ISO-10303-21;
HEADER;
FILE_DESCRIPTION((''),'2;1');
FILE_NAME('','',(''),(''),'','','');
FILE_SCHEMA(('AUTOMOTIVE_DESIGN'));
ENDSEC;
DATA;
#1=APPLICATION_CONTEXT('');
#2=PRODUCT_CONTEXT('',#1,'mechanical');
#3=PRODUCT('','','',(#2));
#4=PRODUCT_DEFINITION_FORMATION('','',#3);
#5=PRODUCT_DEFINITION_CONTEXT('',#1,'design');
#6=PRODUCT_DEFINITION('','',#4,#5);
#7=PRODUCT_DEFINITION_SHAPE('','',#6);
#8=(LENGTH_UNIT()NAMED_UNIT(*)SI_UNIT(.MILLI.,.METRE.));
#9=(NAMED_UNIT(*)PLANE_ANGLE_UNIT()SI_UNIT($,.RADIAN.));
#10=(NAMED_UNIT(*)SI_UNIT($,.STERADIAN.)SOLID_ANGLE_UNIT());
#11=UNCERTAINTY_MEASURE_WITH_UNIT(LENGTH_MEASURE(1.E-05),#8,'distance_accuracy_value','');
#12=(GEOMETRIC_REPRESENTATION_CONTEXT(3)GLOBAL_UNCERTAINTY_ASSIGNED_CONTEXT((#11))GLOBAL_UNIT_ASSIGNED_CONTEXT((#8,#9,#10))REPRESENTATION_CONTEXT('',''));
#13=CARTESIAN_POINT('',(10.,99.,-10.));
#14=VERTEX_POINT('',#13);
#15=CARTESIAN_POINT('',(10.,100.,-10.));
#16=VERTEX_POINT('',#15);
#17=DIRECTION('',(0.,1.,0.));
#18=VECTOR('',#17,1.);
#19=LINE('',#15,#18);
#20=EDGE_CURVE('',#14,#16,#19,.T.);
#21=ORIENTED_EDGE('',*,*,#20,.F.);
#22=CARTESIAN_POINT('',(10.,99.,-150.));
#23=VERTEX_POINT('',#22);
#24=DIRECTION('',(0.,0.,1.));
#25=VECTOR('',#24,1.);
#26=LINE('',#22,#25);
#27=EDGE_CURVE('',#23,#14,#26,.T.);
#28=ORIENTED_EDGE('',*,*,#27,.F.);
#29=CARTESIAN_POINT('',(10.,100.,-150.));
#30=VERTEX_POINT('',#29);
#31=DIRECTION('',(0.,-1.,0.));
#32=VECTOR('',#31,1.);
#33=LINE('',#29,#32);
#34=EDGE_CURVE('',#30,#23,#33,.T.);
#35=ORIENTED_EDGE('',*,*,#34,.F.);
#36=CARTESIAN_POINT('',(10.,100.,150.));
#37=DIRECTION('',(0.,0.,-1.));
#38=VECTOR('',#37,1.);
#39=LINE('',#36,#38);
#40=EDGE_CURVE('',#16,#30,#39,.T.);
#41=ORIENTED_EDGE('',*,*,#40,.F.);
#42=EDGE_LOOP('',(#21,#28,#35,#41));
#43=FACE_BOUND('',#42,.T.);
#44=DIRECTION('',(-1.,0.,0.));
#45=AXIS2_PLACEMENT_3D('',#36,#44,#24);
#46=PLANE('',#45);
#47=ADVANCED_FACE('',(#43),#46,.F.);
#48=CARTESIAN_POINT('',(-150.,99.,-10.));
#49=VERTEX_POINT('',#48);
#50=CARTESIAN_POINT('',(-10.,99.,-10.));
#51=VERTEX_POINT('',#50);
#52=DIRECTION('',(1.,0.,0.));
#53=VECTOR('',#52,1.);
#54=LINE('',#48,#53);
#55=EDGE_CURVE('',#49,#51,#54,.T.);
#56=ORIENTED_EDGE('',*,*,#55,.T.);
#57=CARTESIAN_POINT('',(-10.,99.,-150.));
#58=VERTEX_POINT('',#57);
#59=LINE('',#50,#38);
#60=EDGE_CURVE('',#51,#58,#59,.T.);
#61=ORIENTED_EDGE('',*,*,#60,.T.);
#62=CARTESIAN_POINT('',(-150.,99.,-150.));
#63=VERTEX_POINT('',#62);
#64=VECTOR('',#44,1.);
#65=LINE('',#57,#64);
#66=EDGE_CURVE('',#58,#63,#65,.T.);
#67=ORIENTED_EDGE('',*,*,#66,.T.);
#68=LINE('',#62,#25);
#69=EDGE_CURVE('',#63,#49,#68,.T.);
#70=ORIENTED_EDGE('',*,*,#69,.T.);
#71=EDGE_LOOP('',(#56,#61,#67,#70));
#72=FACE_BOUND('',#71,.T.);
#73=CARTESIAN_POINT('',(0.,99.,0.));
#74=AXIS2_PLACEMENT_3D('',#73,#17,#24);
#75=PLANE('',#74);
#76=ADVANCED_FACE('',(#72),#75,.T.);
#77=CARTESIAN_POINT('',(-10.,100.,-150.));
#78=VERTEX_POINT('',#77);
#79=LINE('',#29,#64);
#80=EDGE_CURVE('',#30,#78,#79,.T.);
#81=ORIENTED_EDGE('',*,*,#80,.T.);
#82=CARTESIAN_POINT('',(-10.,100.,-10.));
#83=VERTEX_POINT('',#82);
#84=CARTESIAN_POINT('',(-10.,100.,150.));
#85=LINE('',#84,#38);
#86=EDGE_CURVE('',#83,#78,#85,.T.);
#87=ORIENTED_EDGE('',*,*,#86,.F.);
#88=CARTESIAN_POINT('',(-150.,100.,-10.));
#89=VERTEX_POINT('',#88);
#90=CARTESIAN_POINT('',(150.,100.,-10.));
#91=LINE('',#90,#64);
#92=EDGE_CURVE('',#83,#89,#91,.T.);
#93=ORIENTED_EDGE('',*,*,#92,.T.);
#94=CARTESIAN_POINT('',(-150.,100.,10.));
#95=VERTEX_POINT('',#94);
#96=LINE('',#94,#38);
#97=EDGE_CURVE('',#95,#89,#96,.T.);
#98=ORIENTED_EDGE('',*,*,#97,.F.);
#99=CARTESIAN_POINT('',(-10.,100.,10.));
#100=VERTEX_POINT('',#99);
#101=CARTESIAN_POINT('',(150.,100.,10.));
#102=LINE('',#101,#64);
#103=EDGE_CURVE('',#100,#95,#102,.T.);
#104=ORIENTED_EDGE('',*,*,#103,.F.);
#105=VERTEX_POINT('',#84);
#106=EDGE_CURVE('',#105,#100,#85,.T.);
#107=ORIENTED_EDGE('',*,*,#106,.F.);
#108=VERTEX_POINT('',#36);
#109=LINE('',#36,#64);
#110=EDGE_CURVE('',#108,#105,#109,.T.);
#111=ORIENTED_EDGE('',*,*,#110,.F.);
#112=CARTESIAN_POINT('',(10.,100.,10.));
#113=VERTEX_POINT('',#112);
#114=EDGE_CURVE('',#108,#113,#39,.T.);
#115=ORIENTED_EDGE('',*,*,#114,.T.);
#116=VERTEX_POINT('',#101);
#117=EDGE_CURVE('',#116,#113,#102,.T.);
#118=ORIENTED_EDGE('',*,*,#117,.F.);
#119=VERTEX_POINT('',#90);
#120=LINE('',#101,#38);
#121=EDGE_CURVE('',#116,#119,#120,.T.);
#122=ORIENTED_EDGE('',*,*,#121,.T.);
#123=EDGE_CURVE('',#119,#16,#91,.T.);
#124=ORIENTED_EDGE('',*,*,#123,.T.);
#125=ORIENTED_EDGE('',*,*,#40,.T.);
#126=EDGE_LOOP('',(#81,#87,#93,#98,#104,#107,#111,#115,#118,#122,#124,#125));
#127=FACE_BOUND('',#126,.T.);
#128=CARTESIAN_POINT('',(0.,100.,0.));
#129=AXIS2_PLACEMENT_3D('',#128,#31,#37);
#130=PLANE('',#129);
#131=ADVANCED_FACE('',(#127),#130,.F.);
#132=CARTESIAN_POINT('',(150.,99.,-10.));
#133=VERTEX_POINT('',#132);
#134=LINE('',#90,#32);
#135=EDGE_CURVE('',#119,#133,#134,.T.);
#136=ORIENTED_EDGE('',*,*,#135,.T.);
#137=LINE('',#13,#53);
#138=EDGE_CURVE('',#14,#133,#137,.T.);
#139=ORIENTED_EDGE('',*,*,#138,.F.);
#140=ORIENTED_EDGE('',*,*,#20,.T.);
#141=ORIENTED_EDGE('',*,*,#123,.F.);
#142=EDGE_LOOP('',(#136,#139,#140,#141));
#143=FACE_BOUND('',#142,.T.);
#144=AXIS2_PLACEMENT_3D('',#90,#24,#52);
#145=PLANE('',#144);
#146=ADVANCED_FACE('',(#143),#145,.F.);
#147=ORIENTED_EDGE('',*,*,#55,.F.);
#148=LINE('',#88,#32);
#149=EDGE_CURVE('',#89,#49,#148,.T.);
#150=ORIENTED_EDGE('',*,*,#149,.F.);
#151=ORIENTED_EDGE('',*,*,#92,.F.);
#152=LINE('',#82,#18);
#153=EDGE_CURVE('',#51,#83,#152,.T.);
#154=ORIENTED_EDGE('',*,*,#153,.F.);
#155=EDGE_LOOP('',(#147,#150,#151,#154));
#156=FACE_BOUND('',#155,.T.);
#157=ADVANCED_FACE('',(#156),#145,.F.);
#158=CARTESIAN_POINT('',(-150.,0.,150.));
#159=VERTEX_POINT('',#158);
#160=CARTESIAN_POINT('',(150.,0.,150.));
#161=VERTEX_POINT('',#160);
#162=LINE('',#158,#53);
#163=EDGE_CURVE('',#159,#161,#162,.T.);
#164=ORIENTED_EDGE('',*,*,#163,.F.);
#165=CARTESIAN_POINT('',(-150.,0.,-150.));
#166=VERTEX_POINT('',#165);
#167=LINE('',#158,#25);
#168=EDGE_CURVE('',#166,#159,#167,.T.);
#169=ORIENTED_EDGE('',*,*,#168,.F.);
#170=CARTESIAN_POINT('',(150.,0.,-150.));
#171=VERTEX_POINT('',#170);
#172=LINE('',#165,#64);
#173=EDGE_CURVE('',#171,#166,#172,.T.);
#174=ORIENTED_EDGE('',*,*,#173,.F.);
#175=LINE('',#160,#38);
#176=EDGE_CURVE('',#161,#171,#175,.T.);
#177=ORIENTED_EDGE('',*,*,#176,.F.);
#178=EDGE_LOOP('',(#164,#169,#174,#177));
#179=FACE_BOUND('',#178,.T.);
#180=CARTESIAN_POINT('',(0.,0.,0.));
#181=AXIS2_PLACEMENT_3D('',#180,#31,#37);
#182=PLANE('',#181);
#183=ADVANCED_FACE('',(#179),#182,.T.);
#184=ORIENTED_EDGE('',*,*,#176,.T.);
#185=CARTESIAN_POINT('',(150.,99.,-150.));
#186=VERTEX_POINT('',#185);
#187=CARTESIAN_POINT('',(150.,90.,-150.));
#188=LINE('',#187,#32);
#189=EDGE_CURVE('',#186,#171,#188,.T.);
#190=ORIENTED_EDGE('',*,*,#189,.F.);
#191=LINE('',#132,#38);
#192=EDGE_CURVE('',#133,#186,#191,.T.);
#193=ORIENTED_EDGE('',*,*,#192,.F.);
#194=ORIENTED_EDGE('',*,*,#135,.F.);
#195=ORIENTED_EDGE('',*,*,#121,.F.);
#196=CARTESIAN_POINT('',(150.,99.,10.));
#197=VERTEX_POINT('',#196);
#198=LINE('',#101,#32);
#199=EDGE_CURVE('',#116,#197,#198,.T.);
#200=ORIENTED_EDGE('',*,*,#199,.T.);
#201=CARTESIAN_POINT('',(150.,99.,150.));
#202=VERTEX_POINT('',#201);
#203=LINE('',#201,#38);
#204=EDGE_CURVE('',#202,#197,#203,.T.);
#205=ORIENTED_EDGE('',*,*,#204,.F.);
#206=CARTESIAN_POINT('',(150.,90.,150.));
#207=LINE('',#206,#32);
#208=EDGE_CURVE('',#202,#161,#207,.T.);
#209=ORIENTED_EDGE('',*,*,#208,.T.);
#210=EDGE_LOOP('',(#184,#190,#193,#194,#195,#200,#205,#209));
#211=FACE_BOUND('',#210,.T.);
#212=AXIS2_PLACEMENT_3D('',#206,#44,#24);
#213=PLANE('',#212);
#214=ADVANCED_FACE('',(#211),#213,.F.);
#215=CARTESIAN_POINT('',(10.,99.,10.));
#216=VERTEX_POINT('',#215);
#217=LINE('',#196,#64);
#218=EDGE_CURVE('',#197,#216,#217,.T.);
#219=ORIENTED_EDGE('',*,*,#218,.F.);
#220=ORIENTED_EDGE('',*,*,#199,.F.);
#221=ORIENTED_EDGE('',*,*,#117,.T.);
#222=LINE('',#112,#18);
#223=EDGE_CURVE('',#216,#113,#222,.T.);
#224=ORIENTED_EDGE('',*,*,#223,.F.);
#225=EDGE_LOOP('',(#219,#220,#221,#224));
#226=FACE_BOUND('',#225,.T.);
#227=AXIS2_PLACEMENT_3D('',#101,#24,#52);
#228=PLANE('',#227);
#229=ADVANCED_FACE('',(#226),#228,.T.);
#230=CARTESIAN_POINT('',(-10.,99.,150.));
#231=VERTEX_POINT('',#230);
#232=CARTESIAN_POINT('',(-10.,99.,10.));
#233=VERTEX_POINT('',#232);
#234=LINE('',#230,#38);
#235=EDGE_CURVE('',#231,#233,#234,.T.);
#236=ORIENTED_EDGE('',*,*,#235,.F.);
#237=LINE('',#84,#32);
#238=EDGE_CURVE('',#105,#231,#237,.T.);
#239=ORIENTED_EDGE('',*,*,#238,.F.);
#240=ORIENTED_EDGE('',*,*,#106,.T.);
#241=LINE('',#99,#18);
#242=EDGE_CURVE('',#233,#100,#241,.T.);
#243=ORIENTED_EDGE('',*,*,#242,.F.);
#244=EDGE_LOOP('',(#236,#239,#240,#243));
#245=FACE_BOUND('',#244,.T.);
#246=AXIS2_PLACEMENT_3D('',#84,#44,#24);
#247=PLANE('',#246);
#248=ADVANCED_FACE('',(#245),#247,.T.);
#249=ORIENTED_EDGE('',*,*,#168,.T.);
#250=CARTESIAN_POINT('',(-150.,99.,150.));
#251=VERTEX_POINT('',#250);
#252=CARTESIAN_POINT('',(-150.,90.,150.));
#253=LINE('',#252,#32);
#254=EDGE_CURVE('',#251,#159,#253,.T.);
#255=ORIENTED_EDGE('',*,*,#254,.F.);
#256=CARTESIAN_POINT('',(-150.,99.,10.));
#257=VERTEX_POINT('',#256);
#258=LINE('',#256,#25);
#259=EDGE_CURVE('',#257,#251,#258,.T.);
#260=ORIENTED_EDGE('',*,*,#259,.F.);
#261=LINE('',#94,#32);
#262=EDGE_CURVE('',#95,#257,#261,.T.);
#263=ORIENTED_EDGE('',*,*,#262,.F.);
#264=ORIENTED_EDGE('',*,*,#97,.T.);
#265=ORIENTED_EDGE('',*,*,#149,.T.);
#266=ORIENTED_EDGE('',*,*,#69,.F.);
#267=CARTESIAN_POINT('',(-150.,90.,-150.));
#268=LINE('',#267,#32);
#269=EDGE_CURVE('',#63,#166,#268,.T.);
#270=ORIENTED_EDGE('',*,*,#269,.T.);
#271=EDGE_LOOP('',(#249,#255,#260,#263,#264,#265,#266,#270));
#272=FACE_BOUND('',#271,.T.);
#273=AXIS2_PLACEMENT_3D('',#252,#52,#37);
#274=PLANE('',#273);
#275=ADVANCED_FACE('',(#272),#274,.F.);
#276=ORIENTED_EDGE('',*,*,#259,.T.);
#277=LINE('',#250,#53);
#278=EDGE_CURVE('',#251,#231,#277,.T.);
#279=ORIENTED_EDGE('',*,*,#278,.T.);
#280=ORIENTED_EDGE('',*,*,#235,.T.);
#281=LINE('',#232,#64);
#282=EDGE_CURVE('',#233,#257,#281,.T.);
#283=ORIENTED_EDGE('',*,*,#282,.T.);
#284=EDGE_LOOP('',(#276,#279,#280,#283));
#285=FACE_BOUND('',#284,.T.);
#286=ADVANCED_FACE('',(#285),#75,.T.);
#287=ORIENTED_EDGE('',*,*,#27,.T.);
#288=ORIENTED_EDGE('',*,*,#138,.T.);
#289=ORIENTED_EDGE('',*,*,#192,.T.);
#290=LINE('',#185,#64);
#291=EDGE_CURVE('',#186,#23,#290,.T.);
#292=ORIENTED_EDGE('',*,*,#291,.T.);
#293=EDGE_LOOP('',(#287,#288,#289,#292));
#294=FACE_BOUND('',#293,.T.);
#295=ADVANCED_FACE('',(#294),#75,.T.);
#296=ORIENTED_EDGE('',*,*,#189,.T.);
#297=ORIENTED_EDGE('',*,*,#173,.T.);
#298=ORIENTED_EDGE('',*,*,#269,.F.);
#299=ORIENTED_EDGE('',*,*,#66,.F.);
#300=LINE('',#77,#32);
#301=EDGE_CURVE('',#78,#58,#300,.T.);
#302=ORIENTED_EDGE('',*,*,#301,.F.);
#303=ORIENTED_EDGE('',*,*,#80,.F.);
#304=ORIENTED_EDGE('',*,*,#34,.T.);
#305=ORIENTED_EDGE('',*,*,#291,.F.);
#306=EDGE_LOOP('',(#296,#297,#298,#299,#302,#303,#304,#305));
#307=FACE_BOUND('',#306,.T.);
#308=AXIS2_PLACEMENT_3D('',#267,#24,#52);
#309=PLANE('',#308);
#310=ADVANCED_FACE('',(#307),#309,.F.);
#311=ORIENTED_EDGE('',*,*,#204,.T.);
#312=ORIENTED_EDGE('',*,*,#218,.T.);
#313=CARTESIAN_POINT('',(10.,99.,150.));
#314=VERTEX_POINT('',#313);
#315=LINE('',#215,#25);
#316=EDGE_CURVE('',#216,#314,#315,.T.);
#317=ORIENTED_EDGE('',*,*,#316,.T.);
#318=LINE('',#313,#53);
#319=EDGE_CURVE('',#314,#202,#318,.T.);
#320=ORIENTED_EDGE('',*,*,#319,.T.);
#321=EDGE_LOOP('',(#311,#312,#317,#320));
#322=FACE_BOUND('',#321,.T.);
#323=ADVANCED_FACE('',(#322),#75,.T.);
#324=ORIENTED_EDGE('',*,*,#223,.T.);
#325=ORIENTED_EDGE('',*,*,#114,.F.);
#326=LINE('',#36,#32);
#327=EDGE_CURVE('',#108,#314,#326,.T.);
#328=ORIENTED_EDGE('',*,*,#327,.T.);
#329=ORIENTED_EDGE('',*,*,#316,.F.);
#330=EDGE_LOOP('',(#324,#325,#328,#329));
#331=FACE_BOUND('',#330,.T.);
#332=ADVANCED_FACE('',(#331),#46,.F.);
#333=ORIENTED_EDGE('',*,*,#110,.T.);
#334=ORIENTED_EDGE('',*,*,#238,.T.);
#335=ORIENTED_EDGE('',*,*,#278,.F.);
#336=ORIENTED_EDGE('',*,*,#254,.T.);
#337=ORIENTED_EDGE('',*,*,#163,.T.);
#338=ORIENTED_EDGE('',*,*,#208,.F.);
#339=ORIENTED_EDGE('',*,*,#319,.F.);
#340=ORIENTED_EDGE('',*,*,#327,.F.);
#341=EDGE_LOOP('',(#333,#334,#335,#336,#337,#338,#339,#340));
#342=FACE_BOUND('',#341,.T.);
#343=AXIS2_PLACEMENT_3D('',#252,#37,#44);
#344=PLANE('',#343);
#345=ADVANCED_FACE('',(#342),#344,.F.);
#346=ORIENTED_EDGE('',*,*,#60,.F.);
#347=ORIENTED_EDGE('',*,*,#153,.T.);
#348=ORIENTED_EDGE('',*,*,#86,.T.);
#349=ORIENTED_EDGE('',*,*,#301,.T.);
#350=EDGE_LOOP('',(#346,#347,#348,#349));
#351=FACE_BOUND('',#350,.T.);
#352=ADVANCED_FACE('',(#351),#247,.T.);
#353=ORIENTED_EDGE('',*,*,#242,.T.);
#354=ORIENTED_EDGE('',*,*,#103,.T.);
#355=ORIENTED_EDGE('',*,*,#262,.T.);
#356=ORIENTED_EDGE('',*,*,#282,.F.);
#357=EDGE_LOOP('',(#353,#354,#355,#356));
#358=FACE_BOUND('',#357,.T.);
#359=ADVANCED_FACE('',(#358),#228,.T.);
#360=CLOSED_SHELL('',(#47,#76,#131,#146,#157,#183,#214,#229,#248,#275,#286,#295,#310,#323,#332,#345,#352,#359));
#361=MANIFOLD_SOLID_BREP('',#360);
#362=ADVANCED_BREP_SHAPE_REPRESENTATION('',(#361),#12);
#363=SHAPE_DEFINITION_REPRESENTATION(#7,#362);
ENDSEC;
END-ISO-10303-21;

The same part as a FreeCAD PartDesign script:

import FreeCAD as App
import Part
import Sketcher

V = App.Vector

doc = App.newDocument("Part")
body = doc.addObject("PartDesign::Body", "Body")

# Sketch on XZ plane
sketch1 = body.newObject("Sketcher::SketchObject", "Sketch")
sketch1.AttachmentSupport = (doc.getObject("XZ_Plane"), [""])
sketch1.MapMode = "FlatFace"
sketch1.addGeometry([
    Part.LineSegment(V(-150, -150, 0), V(-150, 150, 0)),
    Part.LineSegment(V(-150, 150, 0), V(150, 150, 0)),
    Part.LineSegment(V(150, 150, 0), V(150, -150, 0)),
    Part.LineSegment(V(150, -150, 0), V(-150, -150, 0)),
], False)
sketch1.addConstraint([
    Sketcher.Constraint("Coincident", 0, 2, 1, 1),
    Sketcher.Constraint("Coincident", 1, 2, 2, 1),
    Sketcher.Constraint("Coincident", 2, 2, 3, 1),
    Sketcher.Constraint("Coincident", 3, 2, 0, 1),
    Sketcher.Constraint("Vertical", 0),
    Sketcher.Constraint("Horizontal", 1),
    Sketcher.Constraint("Vertical", 2),
    Sketcher.Constraint("Horizontal", 3),
    Sketcher.Constraint("Symmetric", 0, 2, 2, 2, -1, 1),
    Sketcher.Constraint("Equal", 3, 0),
    Sketcher.Constraint("DistanceX", 1, 1, 1, 2, 300.0),
])
pad1 = body.newObject("PartDesign::Pad", "Pad")
pad1.Profile = sketch1
pad1.Length = 90
pad1.Reversed = True

# Sketch on XZ plane
sketch2 = body.newObject("Sketcher::SketchObject", "Sketch001")
sketch2.AttachmentSupport = (doc.getObject("XZ_Plane"), [""])
sketch2.MapMode = "FlatFace"
sketch2.AttachmentOffset = App.Placement(V(0, 0, -90), App.Rotation())
sketch2.addGeometry([
    Part.LineSegment(V(-10, 10, 0), V(-10, 150, 0)),  # 0
    Part.LineSegment(V(-10, 150, 0), V(10, 150, 0)),  # 1
    Part.LineSegment(V(10, 150, 0), V(10, 10, 0)),  # 2
    Part.LineSegment(V(10, 10, 0), V(150, 10, 0)),  # 3
    Part.LineSegment(V(150, 10, 0), V(150, -10, 0)),  # 4
    Part.LineSegment(V(150, -10, 0), V(10, -10, 0)),  # 5
    Part.LineSegment(V(10, -10, 0), V(10, -150, 0)),  # 6
    Part.LineSegment(V(10, -150, 0), V(-10, -150, 0)),  # 7
    Part.LineSegment(V(-10, -150, 0), V(-10, -10, 0)),  # 8
    Part.LineSegment(V(-10, -10, 0), V(-150, -10, 0)),  # 9
    Part.LineSegment(V(-150, -10, 0), V(-150, 10, 0)),  # 10
    Part.LineSegment(V(-150, 10, 0), V(-10, 10, 0)),  # 11
], False)
sketch2.addConstraint([
    Sketcher.Constraint("Coincident", 0, 2, 1, 1),
    Sketcher.Constraint("Coincident", 1, 2, 2, 1),
    Sketcher.Constraint("Coincident", 2, 2, 3, 1),
    Sketcher.Constraint("Coincident", 3, 2, 4, 1),
    Sketcher.Constraint("Coincident", 4, 2, 5, 1),
    Sketcher.Constraint("Coincident", 5, 2, 6, 1),
    Sketcher.Constraint("Coincident", 6, 2, 7, 1),
    Sketcher.Constraint("Coincident", 7, 2, 8, 1),
    Sketcher.Constraint("Coincident", 8, 2, 9, 1),
    Sketcher.Constraint("Coincident", 9, 2, 10, 1),
    Sketcher.Constraint("Coincident", 10, 2, 11, 1),
    Sketcher.Constraint("Coincident", 11, 2, 0, 1),
    Sketcher.Constraint("Vertical", 0),
    Sketcher.Constraint("Horizontal", 1),
    Sketcher.Constraint("Vertical", 2),
    Sketcher.Constraint("Horizontal", 3),
    Sketcher.Constraint("Vertical", 4),
    Sketcher.Constraint("Horizontal", 5),
    Sketcher.Constraint("Vertical", 6),
    Sketcher.Constraint("Horizontal", 7),
    Sketcher.Constraint("Vertical", 8),
    Sketcher.Constraint("Horizontal", 9),
    Sketcher.Constraint("Vertical", 10),
    Sketcher.Constraint("Horizontal", 11),
    Sketcher.Constraint("Symmetric", 0, 2, 6, 2, -1, 1),
    Sketcher.Constraint("Symmetric", 2, 2, 8, 2, -1, 1),
    Sketcher.Constraint("Symmetric", 4, 2, 10, 2, -1, 1),
    Sketcher.Constraint("Symmetric", 5, 2, 8, 2, -2),
    Sketcher.Constraint("Equal", 11, 0),
    Sketcher.Constraint("Equal", 7, 4),
    Sketcher.Constraint("DistanceX", 1, 1, 1, 2, 20.0),
    Sketcher.Constraint("DistanceX", 3, 1, 3, 2, 140.0),
])
pad2 = body.newObject("PartDesign::Pad", "Pad001")
pad2.Profile = sketch2
pad2.Length = 10
pad2.Reversed = True

# Sketch on XZ plane
sketch3 = body.newObject("Sketcher::SketchObject", "Sketch002")
sketch3.AttachmentSupport = (doc.getObject("XZ_Plane"), [""])
sketch3.MapMode = "FlatFace"
sketch3.AttachmentOffset = App.Placement(V(0, 0, -90), App.Rotation())
sketch3.addGeometry([
    Part.LineSegment(V(-150, 10, 0), V(-150, 150, 0)),  # 0
    Part.LineSegment(V(-150, 150, 0), V(-10, 150, 0)),  # 1
    Part.LineSegment(V(-10, 150, 0), V(-10, 10, 0)),  # 2
    Part.LineSegment(V(-10, 10, 0), V(-150, 10, 0)),  # 3
    Part.LineSegment(V(10, 10, 0), V(10, 150, 0)),  # 4
    Part.LineSegment(V(10, 150, 0), V(150, 150, 0)),  # 5
    Part.LineSegment(V(150, 150, 0), V(150, 10, 0)),  # 6
    Part.LineSegment(V(150, 10, 0), V(10, 10, 0)),  # 7
    Part.LineSegment(V(10, -150, 0), V(10, -10, 0)),  # 8
    Part.LineSegment(V(10, -10, 0), V(150, -10, 0)),  # 9
    Part.LineSegment(V(150, -10, 0), V(150, -150, 0)),  # 10
    Part.LineSegment(V(150, -150, 0), V(10, -150, 0)),  # 11
    Part.LineSegment(V(-150, -150, 0), V(-150, -10, 0)),  # 12
    Part.LineSegment(V(-150, -10, 0), V(-10, -10, 0)),  # 13
    Part.LineSegment(V(-10, -10, 0), V(-10, -150, 0)),  # 14
    Part.LineSegment(V(-10, -150, 0), V(-150, -150, 0)),  # 15
], False)
sketch3.addConstraint([
    Sketcher.Constraint("Coincident", 0, 2, 1, 1),
    Sketcher.Constraint("Coincident", 1, 2, 2, 1),
    Sketcher.Constraint("Coincident", 2, 2, 3, 1),
    Sketcher.Constraint("Coincident", 3, 2, 0, 1),
    Sketcher.Constraint("Coincident", 4, 2, 5, 1),
    Sketcher.Constraint("Coincident", 5, 2, 6, 1),
    Sketcher.Constraint("Coincident", 6, 2, 7, 1),
    Sketcher.Constraint("Coincident", 7, 2, 4, 1),
    Sketcher.Constraint("Coincident", 8, 2, 9, 1),
    Sketcher.Constraint("Coincident", 9, 2, 10, 1),
    Sketcher.Constraint("Coincident", 10, 2, 11, 1),
    Sketcher.Constraint("Coincident", 11, 2, 8, 1),
    Sketcher.Constraint("Coincident", 12, 2, 13, 1),
    Sketcher.Constraint("Coincident", 13, 2, 14, 1),
    Sketcher.Constraint("Coincident", 14, 2, 15, 1),
    Sketcher.Constraint("Coincident", 15, 2, 12, 1),
    Sketcher.Constraint("Vertical", 0),
    Sketcher.Constraint("Horizontal", 1),
    Sketcher.Constraint("Vertical", 2),
    Sketcher.Constraint("Horizontal", 3),
    Sketcher.Constraint("Vertical", 4),
    Sketcher.Constraint("Horizontal", 5),
    Sketcher.Constraint("Vertical", 6),
    Sketcher.Constraint("Horizontal", 7),
    Sketcher.Constraint("Vertical", 8),
    Sketcher.Constraint("Horizontal", 9),
    Sketcher.Constraint("Vertical", 10),
    Sketcher.Constraint("Horizontal", 11),
    Sketcher.Constraint("Vertical", 12),
    Sketcher.Constraint("Horizontal", 13),
    Sketcher.Constraint("Vertical", 14),
    Sketcher.Constraint("Horizontal", 15),
    Sketcher.Constraint("Symmetric", 2, 2, 8, 2, -1, 1),
    Sketcher.Constraint("Symmetric", 0, 2, 10, 2, -1, 1),
    Sketcher.Constraint("Symmetric", 6, 2, 12, 2, -1, 1),
    Sketcher.Constraint("Symmetric", 4, 2, 14, 2, -1, 1),
    Sketcher.Constraint("Symmetric", 1, 2, 4, 2, -2),
    Sketcher.Constraint("Symmetric", 3, 2, 6, 2, -2),
    Sketcher.Constraint("Equal", 15, 0),
    Sketcher.Constraint("DistanceX", 1, 1, 1, 2, 140.0),
    Sketcher.Constraint("DistanceX", 0, 2, -1, 1, 150.0),
    Sketcher.Constraint("DistanceY", -1, 1, 0, 2, 150.0),
])
pad3 = body.newObject("PartDesign::Pad", "Pad002")
pad3.Profile = sketch3
pad3.Length = 9
pad3.Reversed = True

doc.recompute()
